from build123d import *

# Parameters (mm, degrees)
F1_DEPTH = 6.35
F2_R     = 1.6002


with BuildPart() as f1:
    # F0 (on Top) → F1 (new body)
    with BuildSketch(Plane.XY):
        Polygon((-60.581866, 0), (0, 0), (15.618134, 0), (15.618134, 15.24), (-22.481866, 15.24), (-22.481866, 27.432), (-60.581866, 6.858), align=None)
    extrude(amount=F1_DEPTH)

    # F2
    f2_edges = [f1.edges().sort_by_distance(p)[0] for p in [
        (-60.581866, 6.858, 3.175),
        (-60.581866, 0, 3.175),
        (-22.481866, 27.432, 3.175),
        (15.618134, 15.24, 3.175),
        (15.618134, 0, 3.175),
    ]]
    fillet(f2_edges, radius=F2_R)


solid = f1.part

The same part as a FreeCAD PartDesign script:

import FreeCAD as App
import Part
import Sketcher
Q = App.Units.Quantity


def edges_at(feature, points):
    """Names of the edges that pass closest to the given points."""
    edges = feature.Shape.Edges
    near = lambda p: min(range(len(edges)), key=lambda i: edges[i].distToShape(Part.Vertex(*p))[0])
    return sorted({f"Edge{near(p) + 1}" for p in points})

doc = App.newDocument("Part")
params = doc.addObject("Spreadsheet::Sheet", "Params")
for row, (alias, value) in enumerate([
    ("sketch1_width", "3 in"),
    ("sketch1_width2", "1.5 in"),
    ("sketch1_height", "0.6 in"),
    ("sketch1_height2", "0.48 in"),
    ("sketch1_height3", "0.27 in"),
    ("pad1_length", "0.25 in"),
    ("fillet_radius", "0.063 in"),
], start=1):
    params.set(f"A{row}", alias)
    params.set(f"B{row}", "=" + value)
    params.setAlias(f"B{row}", alias)

body = doc.addObject("PartDesign::Body", "Body")

# Sketch on XY plane
sketch1 = body.newObject("Sketcher::SketchObject", "Sketch")
sketch1.AttachmentSupport = (doc.getObject("XY_Plane"), [""])
sketch1.MapMode = "FlatFace"
sketch1.addGeometry(Part.LineSegment(App.Vector(-61, 0, 0), App.Vector(16, 0, 0)), False)
sketch1.addGeometry(Part.LineSegment(App.Vector(16, 0, 0), App.Vector(16, 15, 0)), False)
sketch1.addGeometry(Part.LineSegment(App.Vector(16, 15, 0), App.Vector(-22, 15, 0)), False)
sketch1.addGeometry(Part.LineSegment(App.Vector(-22, 15, 0), App.Vector(-22, 27, 0)), False)
sketch1.addGeometry(Part.LineSegment(App.Vector(-22, 27, 0), App.Vector(-61, 7, 0)), False)
sketch1.addGeometry(Part.LineSegment(App.Vector(-61, 7, 0), App.Vector(-61, 0, 0)), False)
sketch1.addConstraint(Sketcher.Constraint("Coincident", 0, 2, 1, 1))
sketch1.addConstraint(Sketcher.Constraint("Coincident", 1, 2, 2, 1))
sketch1.addConstraint(Sketcher.Constraint("Coincident", 2, 2, 3, 1))
sketch1.addConstraint(Sketcher.Constraint("Coincident", 3, 2, 4, 1))
sketch1.addConstraint(Sketcher.Constraint("Coincident", 4, 2, 5, 1))
sketch1.addConstraint(Sketcher.Constraint("Coincident", 5, 2, 0, 1))
sketch1.addConstraint(Sketcher.Constraint("Horizontal", 0))
sketch1.addConstraint(Sketcher.Constraint("Vertical", 1))
sketch1.addConstraint(Sketcher.Constraint("Horizontal", 2))
sketch1.addConstraint(Sketcher.Constraint("Vertical", 3))
sketch1.addConstraint(Sketcher.Constraint("Vertical", 5))
sketch1.addConstraint(Sketcher.Constraint("PointOnObject", 0, 2, -1))
sketch1.addConstraint(Sketcher.Constraint("DistanceX", 0, 1, 0, 2, Q("3 in")))
sketch1.addConstraint(Sketcher.Constraint("DistanceX", 2, 2, 2, 1, Q("1.5 in")))
sketch1.addConstraint(Sketcher.Constraint("DistanceY", 1, 1, 1, 2, Q("0.6 in")))
sketch1.addConstraint(Sketcher.Constraint("DistanceY", 3, 1, 3, 2, Q("0.48 in")))
sketch1.addConstraint(Sketcher.Constraint("DistanceY", 5, 2, 5, 1, Q("0.27 in")))
sketch1.addConstraint(Sketcher.Constraint("DistanceX", -1, 1, 0, 2, 15.618134))
sketch1.setExpression("Constraints[12]", "Params.sketch1_width")
sketch1.setExpression("Constraints[13]", "Params.sketch1_width2")
sketch1.setExpression("Constraints[14]", "Params.sketch1_height")
sketch1.setExpression("Constraints[15]", "Params.sketch1_height2")
sketch1.setExpression("Constraints[16]", "Params.sketch1_height3")
pad1 = body.newObject("PartDesign::Pad", "Pad")
pad1.Profile = sketch1
pad1.setExpression("Length", "Params.pad1_length")
doc.recompute()

fillet = body.newObject("PartDesign::Fillet", "Fillet")
fillet.Base = (pad1, edges_at(pad1, [
    (-60.582, 6.858, 3.175),
    (-60.582, 0, 3.175),
    (-22.482, 27.432, 3.175),
    (15.618, 15.24, 3.175),
    (15.618, 0, 3.175),
]))
fillet.setExpression("Radius", "Params.fillet_radius")

doc.recompute()
